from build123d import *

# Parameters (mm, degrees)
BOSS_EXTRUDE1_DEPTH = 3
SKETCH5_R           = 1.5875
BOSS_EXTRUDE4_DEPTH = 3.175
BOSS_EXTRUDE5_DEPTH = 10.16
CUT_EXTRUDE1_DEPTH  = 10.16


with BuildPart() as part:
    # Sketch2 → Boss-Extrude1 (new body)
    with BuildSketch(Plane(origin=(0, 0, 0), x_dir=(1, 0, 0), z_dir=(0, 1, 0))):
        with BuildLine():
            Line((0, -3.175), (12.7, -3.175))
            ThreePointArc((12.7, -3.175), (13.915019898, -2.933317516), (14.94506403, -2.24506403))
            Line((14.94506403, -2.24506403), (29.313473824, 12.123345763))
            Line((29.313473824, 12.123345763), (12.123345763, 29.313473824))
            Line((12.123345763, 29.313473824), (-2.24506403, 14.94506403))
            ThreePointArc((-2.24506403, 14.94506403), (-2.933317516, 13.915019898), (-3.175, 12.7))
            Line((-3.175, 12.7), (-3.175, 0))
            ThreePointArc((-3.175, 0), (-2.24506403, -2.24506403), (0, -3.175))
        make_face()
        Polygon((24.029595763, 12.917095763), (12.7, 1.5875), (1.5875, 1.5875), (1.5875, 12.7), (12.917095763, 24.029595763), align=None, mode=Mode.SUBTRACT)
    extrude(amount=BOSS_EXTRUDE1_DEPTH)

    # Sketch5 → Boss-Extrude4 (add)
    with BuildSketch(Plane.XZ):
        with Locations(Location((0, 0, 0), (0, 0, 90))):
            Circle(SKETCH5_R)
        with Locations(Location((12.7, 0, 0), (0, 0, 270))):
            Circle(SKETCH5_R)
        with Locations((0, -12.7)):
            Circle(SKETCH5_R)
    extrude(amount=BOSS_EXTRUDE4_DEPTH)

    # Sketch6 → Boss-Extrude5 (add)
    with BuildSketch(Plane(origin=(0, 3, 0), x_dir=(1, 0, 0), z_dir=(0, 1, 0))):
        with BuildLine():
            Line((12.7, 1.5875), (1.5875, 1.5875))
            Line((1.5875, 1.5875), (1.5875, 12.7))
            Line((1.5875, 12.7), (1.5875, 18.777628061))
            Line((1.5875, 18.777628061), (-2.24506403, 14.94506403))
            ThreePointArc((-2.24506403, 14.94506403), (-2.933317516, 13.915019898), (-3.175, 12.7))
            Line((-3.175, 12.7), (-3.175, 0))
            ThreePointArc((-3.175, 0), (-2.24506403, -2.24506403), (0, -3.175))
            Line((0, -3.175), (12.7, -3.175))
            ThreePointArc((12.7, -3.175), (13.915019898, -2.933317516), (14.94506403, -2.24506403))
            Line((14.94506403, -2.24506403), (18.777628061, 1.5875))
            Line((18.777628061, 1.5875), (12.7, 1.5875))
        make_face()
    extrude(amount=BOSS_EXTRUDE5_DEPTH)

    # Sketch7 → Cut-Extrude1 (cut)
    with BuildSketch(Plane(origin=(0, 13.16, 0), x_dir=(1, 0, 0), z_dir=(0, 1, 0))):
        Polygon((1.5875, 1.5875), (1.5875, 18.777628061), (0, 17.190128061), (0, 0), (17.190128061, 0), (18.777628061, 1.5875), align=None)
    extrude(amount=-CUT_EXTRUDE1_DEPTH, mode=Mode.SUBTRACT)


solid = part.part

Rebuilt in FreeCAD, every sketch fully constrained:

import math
import FreeCAD as App
import Part
import Sketcher

V = App.Vector
Q = App.Units.Quantity


def add_polygon(sketch, points):
    """Adds a closed chain of lines whose ends are joined by coincident constraints."""
    first, n = sketch.GeometryCount, len(points)
    for a, b in zip(points, points[1:] + points[:1]):
        sketch.addGeometry(Part.LineSegment(App.Vector(*a, 0), App.Vector(*b, 0)), False)
    for i in range(n):
        sketch.addConstraint(Sketcher.Constraint("Coincident", first + i, 2, first + (i + 1) % n, 1))

doc = App.newDocument("Part")
body = doc.addObject("PartDesign::Body", "Body")

# Sketch on XZ plane
sketch1 = doc.addObject("Sketcher::SketchObject", "Sketch")
body.addObject(sketch1)
sketch1.AttachmentSupport = (doc.XZ_Plane, [""])
sketch1.MapMode = "FlatFace"
sketch1.addGeometry(Part.LineSegment(V(0, 3.2, 0), V(12.7, 3.2, 0)), False)  # 0
sketch1.addGeometry(Part.ArcOfCircle(Part.Circle(V(12.7, 0, 0), V(0, 0, 1), 3.2), math.radians(45), math.radians(90)), False)  # 1
sketch1.addGeometry(Part.LineSegment(V(14.9, 2.2, 0), V(29.3, -12.1, 0)), False)  # 2
sketch1.addGeometry(Part.LineSegment(V(29.3, -12.1, 0), V(12.1, -29.3, 0)), False)  # 3
sketch1.addGeometry(Part.LineSegment(V(12.1, -29.3, 0), V(-2.2, -14.9, 0)), False)  # 4
sketch1.addGeometry(Part.ArcOfCircle(Part.Circle(V(0, -12.7, 0), V(0, 0, 1), 3.2), math.radians(180), math.radians(225)), False)  # 5
sketch1.addGeometry(Part.LineSegment(V(-3.2, -12.7, 0), V(-3.2, 0, 0)), False)  # 6
sketch1.addGeometry(Part.ArcOfCircle(Part.Circle(V(0, 0, 0), V(0, 0, 1), 3.2), math.radians(90), math.radians(180)), False)  # 7
add_polygon(sketch1, [(12.9, -24), (24, -12.9), (12.7, -1.6), (1.6, -1.6), (1.6, -12.7)])  # lines 8-12
sketch1.addConstraint(Sketcher.Constraint("Tangent", 0, 2, 1, 2))
sketch1.addConstraint(Sketcher.Constraint("Tangent", 1, 1, 2, 1))
sketch1.addConstraint(Sketcher.Constraint("Coincident", 2, 2, 3, 1))
sketch1.addConstraint(Sketcher.Constraint("Coincident", 3, 2, 4, 1))
sketch1.addConstraint(Sketcher.Constraint("Tangent", 4, 2, 5, 2))
sketch1.addConstraint(Sketcher.Constraint("Tangent", 5, 1, 6, 1))
sketch1.addConstraint(Sketcher.Constraint("Tangent", 6, 2, 7, 2))
sketch1.addConstraint(Sketcher.Constraint("Tangent", 7, 1, 0, 1))
sketch1.addConstraint(Sketcher.Constraint("Horizontal", 0))
sketch1.addConstraint(Sketcher.Constraint("Vertical", 6))
sketch1.addConstraint(Sketcher.Constraint("Horizontal", 10))
sketch1.addConstraint(Sketcher.Constraint("Vertical", 11))
sketch1.addConstraint(Sketcher.Constraint("Coincident", 7, 3, -1, 1))
sketch1.addConstraint(Sketcher.Constraint("Equal", 1, 5))
sketch1.addConstraint(Sketcher.Constraint("Equal", 5, 7))
sketch1.addConstraint(Sketcher.Constraint("Perpendicular", 2, 3))
sketch1.addConstraint(Sketcher.Constraint("Perpendicular", 3, 4))
sketch1.addConstraint(Sketcher.Constraint("Perpendicular", 4, 8))
sketch1.addConstraint(Sketcher.Constraint("Perpendicular", 8, 9))
sketch1.addConstraint(Sketcher.Constraint("Parallel", 9, 12))
sketch1.addConstraint(Sketcher.Constraint("Horizontal", 5, 1, 11, 2))
sketch1.addConstraint(Sketcher.Constraint("Vertical", 0, 2, 9, 2))
sketch1.addConstraint(Sketcher.Constraint("Equal", 0, 6))
sketch1.addConstraint(Sketcher.Constraint("Equal", 10, 11))
sketch1.addConstraint(Sketcher.Constraint("Equal", 2, 4))
sketch1.addConstraint(Sketcher.Constraint("DistanceX", 0, 1, 0, 2, Q("0.5 in")))
sketch1.addConstraint(Sketcher.Constraint("Radius", 1, Q("0.125 in")))
sketch1.addConstraint(Sketcher.Constraint("Distance", 2, Q("0.8 in")))
sketch1.addConstraint(Sketcher.Constraint("DistanceX", 10, 2, 10, 1, Q("0.4375 in")))
sketch1.addConstraint(Sketcher.Constraint("DistanceY", 8, 2, 2, 2, Q("0.03125 in")))
pad1 = doc.addObject("PartDesign::Pad", "Pad")
body.addObject(pad1)
pad1.Profile = sketch1
pad1.Length = 3
pad1.Reversed = True

# Sketch on XZ plane
sketch2 = doc.addObject("Sketcher::SketchObject", "Sketch001")
body.addObject(sketch2)
sketch2.AttachmentSupport = (doc.XZ_Plane, [""])
sketch2.MapMode = "FlatFace"
sketch2.addGeometry(Part.Circle(V(0, 0, 0), V(0, 0, 1), 1.6), False)
sketch2.addGeometry(Part.Circle(V(12.7, 0, 0), V(0, 0, 1), 1.6), False)
sketch2.addGeometry(Part.Circle(V(0, -12.7, 0), V(0, 0, 1), 1.6), False)
sketch2.addConstraint(Sketcher.Constraint("Coincident", 0, 3, -1, 1))
sketch2.addConstraint(Sketcher.Constraint("Equal", 0, 1))
sketch2.addConstraint(Sketcher.Constraint("Equal", 1, 2))
sketch2.addConstraint(Sketcher.Constraint("PointOnObject", 1, 3, -1))
sketch2.addConstraint(Sketcher.Constraint("PointOnObject", 2, 3, -2))
sketch2.addConstraint(Sketcher.Constraint("Diameter", 0, Q("0.125 in")))
sketch2.addConstraint(Sketcher.Constraint("DistanceX", -1, 1, 1, 3, Q("0.5 in")))
sketch2.addConstraint(Sketcher.Constraint("DistanceY", 2, 3, -1, 1, Q("0.5 in")))
pad2 = doc.addObject("PartDesign::Pad", "Pad001")
body.addObject(pad2)
pad2.Profile = sketch2
pad2.Length = Q("0.125 in")

# Sketch on XZ plane
sketch3 = doc.addObject("Sketcher::SketchObject", "Sketch002")
body.addObject(sketch3)
sketch3.AttachmentSupport = (doc.XZ_Plane, [""])
sketch3.MapMode = "FlatFace"
sketch3.AttachmentOffset = App.Placement(V(0, 0, -3), App.Rotation())
sketch3.addGeometry(Part.LineSegment(V(1.6, -1.6, 0), V(1.6, -18.8, 0)), False)
sketch3.addGeometry(Part.LineSegment(V(1.6, -18.8, 0), V(-2.2, -14.9, 0)), False)
sketch3.addGeometry(Part.ArcOfCircle(Part.Circle(V(0, -12.7, 0), V(0, 0, 1), 3.2), math.radians(180), math.radians(225)), False)
sketch3.addGeometry(Part.LineSegment(V(-3.2, -12.7, 0), V(-3.2, 0, 0)), False)
sketch3.addGeometry(Part.ArcOfCircle(Part.Circle(V(0, 0, 0), V(0, 0, 1), 3.2), math.radians(90), math.radians(180)), False)
sketch3.addGeometry(Part.LineSegment(V(0, 3.2, 0), V(12.7, 3.2, 0)), False)
sketch3.addGeometry(Part.ArcOfCircle(Part.Circle(V(12.7, 0, 0), V(0, 0, 1), 3.2), math.radians(45), math.radians(90)), False)
sketch3.addGeometry(Part.LineSegment(V(14.9, 2.2, 0), V(18.8, -1.6, 0)), False)
sketch3.addGeometry(Part.LineSegment(V(18.8, -1.6, 0), V(1.6, -1.6, 0)), False)
sketch3.addConstraint(Sketcher.Constraint("Coincident", 0, 2, 1, 1))
sketch3.addConstraint(Sketcher.Constraint("Tangent", 1, 2, 2, 2))
sketch3.addConstraint(Sketcher.Constraint("Tangent", 2, 1, 3, 1))
sketch3.addConstraint(Sketcher.Constraint("Tangent", 3, 2, 4, 2))
sketch3.addConstraint(Sketcher.Constraint("Tangent", 4, 1, 5, 1))
sketch3.addConstraint(Sketcher.Constraint("Tangent", 5, 2, 6, 2))
sketch3.addConstraint(Sketcher.Constraint("Tangent", 6, 1, 7, 1))
sketch3.addConstraint(Sketcher.Constraint("Coincident", 7, 2, 8, 1))
sketch3.addConstraint(Sketcher.Constraint("Coincident", 8, 2, 0, 1))
sketch3.addConstraint(Sketcher.Constraint("Vertical", 0))
sketch3.addConstraint(Sketcher.Constraint("Vertical", 3))
sketch3.addConstraint(Sketcher.Constraint("Horizontal", 5))
sketch3.addConstraint(Sketcher.Constraint("Horizontal", 8))
sketch3.addConstraint(Sketcher.Constraint("Coincident", 4, 3, -1, 1))
sketch3.addConstraint(Sketcher.Constraint("Equal", 2, 4))
sketch3.addConstraint(Sketcher.Constraint("Equal", 4, 6))
sketch3.addConstraint(Sketcher.Constraint("Parallel", 1, 7))
sketch3.addConstraint(Sketcher.Constraint("Equal", 8, 0))
sketch3.addConstraint(Sketcher.Constraint("Equal", 5, 3))
sketch3.addConstraint(Sketcher.Constraint("Equal", 1, 7))
sketch3.addConstraint(Sketcher.Constraint("DistanceX", 5, 1, 5, 2, Q("0.5 in")))
sketch3.addConstraint(Sketcher.Constraint("Radius", 2, Q("0.125 in")))
sketch3.addConstraint(Sketcher.Constraint("DistanceX", -1, 1, 0, 2, Q("0.0625 in")))
pad3 = doc.addObject("PartDesign::Pad", "Pad002")
body.addObject(pad3)
pad3.Profile = sketch3
pad3.Length = Q("0.4 in")
pad3.Reversed = True

# Sketch on XZ plane
sketch4 = doc.addObject("Sketcher::SketchObject", "Sketch003")
body.addObject(sketch4)
sketch4.AttachmentSupport = (doc.XZ_Plane, [""])
sketch4.MapMode = "FlatFace"
sketch4.AttachmentOffset = App.Placement(V(0, 0, -13.16), App.Rotation())
add_polygon(sketch4, [(1.6, -1.6), (1.6, -18.8), (0, -17.2), (0, 0), (17.2, 0), (18.8, -1.6)])  # lines 0-5
sketch4.addConstraint(Sketcher.Constraint("Vertical", 0))
sketch4.addConstraint(Sketcher.Constraint("Vertical", 2))
sketch4.addConstraint(Sketcher.Constraint("Horizontal", 3))
sketch4.addConstraint(Sketcher.Constraint("Horizontal", 5))
sketch4.addConstraint(Sketcher.Constraint("Coincident", 2, 2, -1, 1))
sketch4.addConstraint(Sketcher.Constraint("Parallel", 1, 4))
sketch4.addConstraint(Sketcher.Constraint("Equal", 3, 5))
sketch4.addConstraint(Sketcher.Constraint("Equal", 5, 0))
sketch4.addConstraint(Sketcher.Constraint("Angle", 1, Q("135 deg")))
sketch4.addConstraint(Sketcher.Constraint("DistanceX", -1, 1, 0, 2, Q("0.0625 in")))
sketch4.addConstraint(Sketcher.Constraint("DistanceX", 3, 1, 3, 2, 17.190128))
pocket1 = doc.addObject("PartDesign::Pocket", "Pocket")
body.addObject(pocket1)
pocket1.Profile = sketch4
pocket1.Length = Q("0.4 in")
pocket1.Reversed = True

doc.recompute()
